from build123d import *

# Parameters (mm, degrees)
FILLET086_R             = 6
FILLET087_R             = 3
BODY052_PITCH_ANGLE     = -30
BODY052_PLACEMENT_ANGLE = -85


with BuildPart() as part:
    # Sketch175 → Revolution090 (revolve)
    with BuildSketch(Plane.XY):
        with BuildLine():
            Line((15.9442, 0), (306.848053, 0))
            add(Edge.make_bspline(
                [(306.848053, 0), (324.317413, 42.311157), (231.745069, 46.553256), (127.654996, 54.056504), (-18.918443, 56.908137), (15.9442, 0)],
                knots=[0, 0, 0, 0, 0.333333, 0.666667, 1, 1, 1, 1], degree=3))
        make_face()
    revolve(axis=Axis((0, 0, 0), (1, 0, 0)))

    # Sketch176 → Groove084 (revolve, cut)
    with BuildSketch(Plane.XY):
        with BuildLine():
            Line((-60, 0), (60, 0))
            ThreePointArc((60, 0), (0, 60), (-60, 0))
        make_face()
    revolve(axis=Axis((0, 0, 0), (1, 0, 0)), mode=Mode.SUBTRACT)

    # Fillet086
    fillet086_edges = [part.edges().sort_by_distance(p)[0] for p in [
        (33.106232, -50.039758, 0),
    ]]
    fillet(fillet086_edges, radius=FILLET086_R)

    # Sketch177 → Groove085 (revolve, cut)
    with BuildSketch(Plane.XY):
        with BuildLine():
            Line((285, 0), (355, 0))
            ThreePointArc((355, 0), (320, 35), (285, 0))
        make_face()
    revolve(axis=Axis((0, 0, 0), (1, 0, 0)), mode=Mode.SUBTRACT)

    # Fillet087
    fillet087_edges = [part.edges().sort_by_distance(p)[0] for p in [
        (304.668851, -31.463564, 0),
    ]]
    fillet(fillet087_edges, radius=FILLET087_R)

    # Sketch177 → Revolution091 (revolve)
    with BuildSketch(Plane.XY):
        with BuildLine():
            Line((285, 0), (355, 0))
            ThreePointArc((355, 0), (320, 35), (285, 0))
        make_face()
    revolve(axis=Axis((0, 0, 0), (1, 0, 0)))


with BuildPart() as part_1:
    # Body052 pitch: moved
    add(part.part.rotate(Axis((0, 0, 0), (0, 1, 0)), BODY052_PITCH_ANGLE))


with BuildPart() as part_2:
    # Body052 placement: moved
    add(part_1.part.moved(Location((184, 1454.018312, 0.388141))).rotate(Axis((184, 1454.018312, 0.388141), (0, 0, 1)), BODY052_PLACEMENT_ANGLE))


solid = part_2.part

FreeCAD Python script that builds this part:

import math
import FreeCAD as App
import Part
import Sketcher
from FreeCAD import Vector
Q = App.Units.Quantity


def edges_at(feature, points):
    """Names of the edges that pass closest to the given points."""
    edges = feature.Shape.Edges
    near = lambda p: min(range(len(edges)), key=lambda i: edges[i].distToShape(Part.Vertex(*p))[0])
    return sorted({f"Edge{near(p) + 1}" for p in points})

doc = App.newDocument("Part")
body = doc.addObject("PartDesign::Body", "Body")

sketch1 = body.newObject("Sketcher::SketchObject", "Sketch")
sketch1.AttachmentSupport = (doc.getObject("XY_Plane"), [""])
sketch1.MapMode = "FlatFace"
sketch1.addGeometry([
    Part.LineSegment(Vector(15.9442, 0, 0), Vector(306.848053, 0, 0)),
    Part.BSplineCurve([Vector(306.848053, 0, 0), Vector(324.317413, 42.311157, 0), Vector(231.745069, 46.553256, 0), Vector(127.654996, 54.056504, 0), Vector(-18.918443, 56.908137, 0), Vector(15.9442, 0, 0)], [4, 1, 1, 4], [0, 0.333333, 0.666667, 1], False, 3, [1, 1, 1, 1, 1, 1], False),
], False)
sketch1.addConstraint([
    Sketcher.Constraint("Block", 1),
    Sketcher.Constraint("Coincident", 0, 1, 1, 2),
    Sketcher.Constraint("Coincident", 1, 1, 0, 2),
])
revolution = body.newObject("PartDesign::Revolution", "Revolution")
revolution.Profile = sketch1
revolution.ReferenceAxis = (sketch1, ["H_Axis"])
revolution.Angle = 360

sketch2 = body.newObject("Sketcher::SketchObject", "Sketch001")
sketch2.AttachmentSupport = (doc.getObject("XY_Plane"), [""])
sketch2.MapMode = "FlatFace"
sketch2.addGeometry([
    Part.LineSegment(Vector(-60, 0, 0), Vector(60, 0, 0)),
    Part.ArcOfCircle(Part.Circle(Vector(0, 0, 0), Vector(0, 0, 1), 60), math.radians(0), math.radians(180)),
], False)
sketch2.addConstraint([
    Sketcher.Constraint("Coincident", 0, 1, 1, 2),
    Sketcher.Constraint("Coincident", 1, 1, 0, 2),
    Sketcher.Constraint("Horizontal", 0),
    Sketcher.Constraint("Coincident", 1, 3, -1, 1),
    Sketcher.Constraint("PointOnObject", 0, 1, -1),
    Sketcher.Constraint("Radius", 1, Q("60 mm")),
])
groove = body.newObject("PartDesign::Groove", "Groove")
groove.Profile = sketch2
groove.ReferenceAxis = (sketch2, ["H_Axis"])
groove.Angle = 360
doc.recompute()

fillet = body.newObject("PartDesign::Fillet", "Fillet")
fillet.Base = (groove, edges_at(groove, [(33.106, -50.04, 0)]))
fillet.Radius = 6

sketch3 = body.newObject("Sketcher::SketchObject", "Sketch002")
sketch3.AttachmentSupport = (doc.getObject("XY_Plane"), [""])
sketch3.MapMode = "FlatFace"
sketch3.addGeometry([
    Part.LineSegment(Vector(285, 0, 0), Vector(355, 0, 0)),
    Part.ArcOfCircle(Part.Circle(Vector(320, 0, 0), Vector(0, 0, 1), 35), math.radians(0), math.radians(180)),
], False)
sketch3.addConstraint([
    Sketcher.Constraint("Coincident", 0, 1, 1, 2),
    Sketcher.Constraint("Coincident", 1, 1, 0, 2),
    Sketcher.Constraint("Horizontal", 0),
    Sketcher.Constraint("PointOnObject", 1, 3, -1),
    Sketcher.Constraint("PointOnObject", 0, 1, -1),
    Sketcher.Constraint("Radius", 1, Q("35 mm")),
    Sketcher.Constraint("DistanceX", -1, 1, 1, 3, Q("320 mm")),
])
groove2 = body.newObject("PartDesign::Groove", "Groove001")
groove2.Profile = sketch3
groove2.ReferenceAxis = (sketch3, ["H_Axis"])
groove2.Angle = 360
doc.recompute()

fillet2 = body.newObject("PartDesign::Fillet", "Fillet001")
fillet2.Base = (groove2, edges_at(groove2, [(304.669, -31.464, 0)]))
fillet2.Radius = 3

sketch4 = body.newObject("Sketcher::SketchObject", "Sketch003")
sketch4.AttachmentSupport = (doc.getObject("XY_Plane"), [""])
sketch4.MapMode = "FlatFace"
sketch4.addGeometry([
    Part.LineSegment(Vector(285, 0, 0), Vector(355, 0, 0)),
    Part.ArcOfCircle(Part.Circle(Vector(320, 0, 0), Vector(0, 0, 1), 35), math.radians(0), math.radians(180)),
], False)
sketch4.addConstraint([
    Sketcher.Constraint("Coincident", 0, 1, 1, 2),
    Sketcher.Constraint("Coincident", 1, 1, 0, 2),
    Sketcher.Constraint("Horizontal", 0),
    Sketcher.Constraint("PointOnObject", 1, 3, -1),
    Sketcher.Constraint("PointOnObject", 0, 1, -1),
    Sketcher.Constraint("Radius", 1, Q("35 mm")),
    Sketcher.Constraint("DistanceX", -1, 1, 1, 3, Q("320 mm")),
])
revolution2 = body.newObject("PartDesign::Revolution", "Revolution001")
revolution2.Profile = sketch4
revolution2.ReferenceAxis = (sketch4, ["H_Axis"])
revolution2.Angle = 360
body2 = doc.addObject("PartDesign::Body", "Body001")
doc.recompute()

body.Placement = App.Placement(Vector(0, 0, 0), App.Rotation(Vector(0, 1, 0), 330))
boolean = body2.newObject("PartDesign::Boolean", "Boolean")
boolean.Type = "Fuse"
boolean.addObjects([body])
body3 = doc.addObject("PartDesign::Body", "Body002")
doc.recompute()

body2.Placement = App.Placement(Vector(184, 1454.018312, 0.388141), App.Rotation(Vector(0, 0, 1), 275))
boolean2 = body3.newObject("PartDesign::Boolean", "Boolean001")
boolean2.Type = "Fuse"
boolean2.addObjects([body2])

doc.recompute()
